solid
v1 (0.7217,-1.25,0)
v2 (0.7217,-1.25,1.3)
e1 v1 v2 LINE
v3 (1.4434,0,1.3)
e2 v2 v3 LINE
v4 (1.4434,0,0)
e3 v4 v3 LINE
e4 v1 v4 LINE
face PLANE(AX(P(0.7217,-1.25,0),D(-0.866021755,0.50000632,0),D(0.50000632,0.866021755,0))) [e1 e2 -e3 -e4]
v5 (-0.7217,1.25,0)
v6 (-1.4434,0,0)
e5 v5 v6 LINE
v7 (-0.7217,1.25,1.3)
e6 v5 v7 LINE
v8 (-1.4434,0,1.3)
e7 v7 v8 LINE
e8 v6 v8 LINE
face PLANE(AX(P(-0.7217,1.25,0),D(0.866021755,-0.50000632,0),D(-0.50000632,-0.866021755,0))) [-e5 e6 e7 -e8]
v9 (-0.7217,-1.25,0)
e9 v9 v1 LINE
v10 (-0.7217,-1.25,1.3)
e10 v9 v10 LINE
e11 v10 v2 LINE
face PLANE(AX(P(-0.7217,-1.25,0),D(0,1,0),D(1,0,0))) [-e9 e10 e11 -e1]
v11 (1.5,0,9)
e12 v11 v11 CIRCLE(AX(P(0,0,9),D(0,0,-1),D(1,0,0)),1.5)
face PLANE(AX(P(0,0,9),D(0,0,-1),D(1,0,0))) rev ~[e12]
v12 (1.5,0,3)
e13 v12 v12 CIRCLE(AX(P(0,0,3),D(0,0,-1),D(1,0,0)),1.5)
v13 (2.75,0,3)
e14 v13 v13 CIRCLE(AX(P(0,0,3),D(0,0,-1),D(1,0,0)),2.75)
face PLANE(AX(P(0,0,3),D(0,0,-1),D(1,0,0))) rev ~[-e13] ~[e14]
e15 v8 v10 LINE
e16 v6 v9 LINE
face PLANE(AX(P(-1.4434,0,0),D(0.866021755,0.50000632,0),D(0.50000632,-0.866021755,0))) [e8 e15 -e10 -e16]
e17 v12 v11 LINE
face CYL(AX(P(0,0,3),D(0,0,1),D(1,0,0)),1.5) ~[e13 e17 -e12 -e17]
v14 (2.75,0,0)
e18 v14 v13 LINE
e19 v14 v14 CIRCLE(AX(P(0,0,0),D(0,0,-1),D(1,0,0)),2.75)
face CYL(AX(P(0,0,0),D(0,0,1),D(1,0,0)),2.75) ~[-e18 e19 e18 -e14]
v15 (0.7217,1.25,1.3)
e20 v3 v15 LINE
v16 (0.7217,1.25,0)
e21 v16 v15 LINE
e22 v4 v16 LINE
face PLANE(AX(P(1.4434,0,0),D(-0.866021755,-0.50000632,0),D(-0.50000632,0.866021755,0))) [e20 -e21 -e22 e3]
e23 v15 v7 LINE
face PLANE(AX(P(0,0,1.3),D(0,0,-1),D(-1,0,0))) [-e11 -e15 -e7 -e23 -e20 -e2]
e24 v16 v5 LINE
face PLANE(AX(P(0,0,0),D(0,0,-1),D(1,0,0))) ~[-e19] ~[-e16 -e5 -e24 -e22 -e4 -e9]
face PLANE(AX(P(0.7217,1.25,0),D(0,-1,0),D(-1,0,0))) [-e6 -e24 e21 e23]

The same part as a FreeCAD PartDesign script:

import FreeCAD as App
import Part
import Sketcher
Q = App.Units.Quantity


def add_polygon(sketch, points):
    """Adds a closed chain of lines whose ends are joined by coincident constraints."""
    first, n = sketch.GeometryCount, len(points)
    for a, b in zip(points, points[1:] + points[:1]):
        sketch.addGeometry(Part.LineSegment(App.Vector(*a, 0), App.Vector(*b, 0)), False)
    for i in range(n):
        sketch.addConstraint(Sketcher.Constraint("Coincident", first + i, 2, first + (i + 1) % n, 1))

doc = App.newDocument("Part")
params = doc.addObject("Spreadsheet::Sheet", "Params")
for row, (alias, value) in enumerate([
    ("sketch1_height", "6 mm"),
    ("sketch1_height2", "3 mm"),
    ("sketch1_width", "1.5 mm"),
    ("sketch1_width2", "2.75 mm"),
    ("revolution_angle", "360 deg"),
    ("pocket1_length", "1.3 mm"),
], start=1):
    params.set(f"A{row}", alias)
    params.set(f"B{row}", "=" + value)
    params.setAlias(f"B{row}", alias)

body = doc.addObject("PartDesign::Body", "Body")

# Sketch on XZ plane
sketch1 = body.newObject("Sketcher::SketchObject", "Sketch")
sketch1.AttachmentSupport = (doc.getObject("XZ_Plane"), [""])
sketch1.MapMode = "FlatFace"
add_polygon(sketch1, [(2.8, 0), (0, 0), (0, 9), (1.5, 9), (1.5, 3), (2.8, 3)])  # lines 0-5
sketch1.addConstraint([
    Sketcher.Constraint("Horizontal", 0),
    Sketcher.Constraint("Vertical", 1),
    Sketcher.Constraint("Horizontal", 2),
    Sketcher.Constraint("Vertical", 3),
    Sketcher.Constraint("Horizontal", 4),
    Sketcher.Constraint("Vertical", 5),
    Sketcher.Constraint("Coincident", 0, 2, -1, 1),
    Sketcher.Constraint("DistanceY", 3, 2, 3, 1, Q("6 mm")),
    Sketcher.Constraint("DistanceY", 5, 2, 5, 1, Q("3 mm")),
    Sketcher.Constraint("DistanceX", 2, 1, 2, 2, Q("1.5 mm")),
    Sketcher.Constraint("DistanceX", 0, 2, 0, 1, Q("2.75 mm")),
])
sketch1.setExpression("Constraints[13]", "Params.sketch1_height")
sketch1.setExpression("Constraints[14]", "Params.sketch1_height2")
sketch1.setExpression("Constraints[15]", "Params.sketch1_width")
sketch1.setExpression("Constraints[16]", "Params.sketch1_width2")
revolution = body.newObject("PartDesign::Revolution", "Revolution")
revolution.Profile = sketch1
revolution.ReferenceAxis = (sketch1, ["V_Axis"])
revolution.setExpression("Angle", "Params.revolution_angle")

# Sketch on XY plane
sketch2 = body.newObject("Sketcher::SketchObject", "Sketch001")
sketch2.AttachmentSupport = (doc.getObject("XY_Plane"), [""])
sketch2.MapMode = "FlatFace"
add_polygon(sketch2, [(-1.4, 0), (-0.7, 1.2), (0.7, 1.2), (1.4, 0), (0.7, -1.2), (-0.7, -1.2)])  # lines 0-5
sketch2.addConstraint([
    Sketcher.Constraint("Horizontal", 1),
    Sketcher.Constraint("Horizontal", 4),
    Sketcher.Constraint("Symmetric", 0, 2, 3, 2, -1, 1),
    Sketcher.Constraint("Symmetric", 2, 2, 5, 2, -1, 1),
    Sketcher.Constraint("PointOnObject", 2, 2, -1),
    Sketcher.Constraint("Parallel", 2, 5),
    Sketcher.Constraint("Vertical", 1, 2, 3, 2),
    Sketcher.Constraint("DistanceY", 3, 2, 1, 2, Q("2.5 mm")),
    Sketcher.Constraint("Angle", 0, Q("59.9996 deg")),
    Sketcher.Constraint("DistanceX", 1, 1, 1, 2, Q("1.4434 mm")),
])
pocket1 = body.newObject("PartDesign::Pocket", "Pocket")
pocket1.Profile = sketch2
pocket1.setExpression("Length", "Params.pocket1_length")
pocket1.Reversed = True

doc.recompute()
